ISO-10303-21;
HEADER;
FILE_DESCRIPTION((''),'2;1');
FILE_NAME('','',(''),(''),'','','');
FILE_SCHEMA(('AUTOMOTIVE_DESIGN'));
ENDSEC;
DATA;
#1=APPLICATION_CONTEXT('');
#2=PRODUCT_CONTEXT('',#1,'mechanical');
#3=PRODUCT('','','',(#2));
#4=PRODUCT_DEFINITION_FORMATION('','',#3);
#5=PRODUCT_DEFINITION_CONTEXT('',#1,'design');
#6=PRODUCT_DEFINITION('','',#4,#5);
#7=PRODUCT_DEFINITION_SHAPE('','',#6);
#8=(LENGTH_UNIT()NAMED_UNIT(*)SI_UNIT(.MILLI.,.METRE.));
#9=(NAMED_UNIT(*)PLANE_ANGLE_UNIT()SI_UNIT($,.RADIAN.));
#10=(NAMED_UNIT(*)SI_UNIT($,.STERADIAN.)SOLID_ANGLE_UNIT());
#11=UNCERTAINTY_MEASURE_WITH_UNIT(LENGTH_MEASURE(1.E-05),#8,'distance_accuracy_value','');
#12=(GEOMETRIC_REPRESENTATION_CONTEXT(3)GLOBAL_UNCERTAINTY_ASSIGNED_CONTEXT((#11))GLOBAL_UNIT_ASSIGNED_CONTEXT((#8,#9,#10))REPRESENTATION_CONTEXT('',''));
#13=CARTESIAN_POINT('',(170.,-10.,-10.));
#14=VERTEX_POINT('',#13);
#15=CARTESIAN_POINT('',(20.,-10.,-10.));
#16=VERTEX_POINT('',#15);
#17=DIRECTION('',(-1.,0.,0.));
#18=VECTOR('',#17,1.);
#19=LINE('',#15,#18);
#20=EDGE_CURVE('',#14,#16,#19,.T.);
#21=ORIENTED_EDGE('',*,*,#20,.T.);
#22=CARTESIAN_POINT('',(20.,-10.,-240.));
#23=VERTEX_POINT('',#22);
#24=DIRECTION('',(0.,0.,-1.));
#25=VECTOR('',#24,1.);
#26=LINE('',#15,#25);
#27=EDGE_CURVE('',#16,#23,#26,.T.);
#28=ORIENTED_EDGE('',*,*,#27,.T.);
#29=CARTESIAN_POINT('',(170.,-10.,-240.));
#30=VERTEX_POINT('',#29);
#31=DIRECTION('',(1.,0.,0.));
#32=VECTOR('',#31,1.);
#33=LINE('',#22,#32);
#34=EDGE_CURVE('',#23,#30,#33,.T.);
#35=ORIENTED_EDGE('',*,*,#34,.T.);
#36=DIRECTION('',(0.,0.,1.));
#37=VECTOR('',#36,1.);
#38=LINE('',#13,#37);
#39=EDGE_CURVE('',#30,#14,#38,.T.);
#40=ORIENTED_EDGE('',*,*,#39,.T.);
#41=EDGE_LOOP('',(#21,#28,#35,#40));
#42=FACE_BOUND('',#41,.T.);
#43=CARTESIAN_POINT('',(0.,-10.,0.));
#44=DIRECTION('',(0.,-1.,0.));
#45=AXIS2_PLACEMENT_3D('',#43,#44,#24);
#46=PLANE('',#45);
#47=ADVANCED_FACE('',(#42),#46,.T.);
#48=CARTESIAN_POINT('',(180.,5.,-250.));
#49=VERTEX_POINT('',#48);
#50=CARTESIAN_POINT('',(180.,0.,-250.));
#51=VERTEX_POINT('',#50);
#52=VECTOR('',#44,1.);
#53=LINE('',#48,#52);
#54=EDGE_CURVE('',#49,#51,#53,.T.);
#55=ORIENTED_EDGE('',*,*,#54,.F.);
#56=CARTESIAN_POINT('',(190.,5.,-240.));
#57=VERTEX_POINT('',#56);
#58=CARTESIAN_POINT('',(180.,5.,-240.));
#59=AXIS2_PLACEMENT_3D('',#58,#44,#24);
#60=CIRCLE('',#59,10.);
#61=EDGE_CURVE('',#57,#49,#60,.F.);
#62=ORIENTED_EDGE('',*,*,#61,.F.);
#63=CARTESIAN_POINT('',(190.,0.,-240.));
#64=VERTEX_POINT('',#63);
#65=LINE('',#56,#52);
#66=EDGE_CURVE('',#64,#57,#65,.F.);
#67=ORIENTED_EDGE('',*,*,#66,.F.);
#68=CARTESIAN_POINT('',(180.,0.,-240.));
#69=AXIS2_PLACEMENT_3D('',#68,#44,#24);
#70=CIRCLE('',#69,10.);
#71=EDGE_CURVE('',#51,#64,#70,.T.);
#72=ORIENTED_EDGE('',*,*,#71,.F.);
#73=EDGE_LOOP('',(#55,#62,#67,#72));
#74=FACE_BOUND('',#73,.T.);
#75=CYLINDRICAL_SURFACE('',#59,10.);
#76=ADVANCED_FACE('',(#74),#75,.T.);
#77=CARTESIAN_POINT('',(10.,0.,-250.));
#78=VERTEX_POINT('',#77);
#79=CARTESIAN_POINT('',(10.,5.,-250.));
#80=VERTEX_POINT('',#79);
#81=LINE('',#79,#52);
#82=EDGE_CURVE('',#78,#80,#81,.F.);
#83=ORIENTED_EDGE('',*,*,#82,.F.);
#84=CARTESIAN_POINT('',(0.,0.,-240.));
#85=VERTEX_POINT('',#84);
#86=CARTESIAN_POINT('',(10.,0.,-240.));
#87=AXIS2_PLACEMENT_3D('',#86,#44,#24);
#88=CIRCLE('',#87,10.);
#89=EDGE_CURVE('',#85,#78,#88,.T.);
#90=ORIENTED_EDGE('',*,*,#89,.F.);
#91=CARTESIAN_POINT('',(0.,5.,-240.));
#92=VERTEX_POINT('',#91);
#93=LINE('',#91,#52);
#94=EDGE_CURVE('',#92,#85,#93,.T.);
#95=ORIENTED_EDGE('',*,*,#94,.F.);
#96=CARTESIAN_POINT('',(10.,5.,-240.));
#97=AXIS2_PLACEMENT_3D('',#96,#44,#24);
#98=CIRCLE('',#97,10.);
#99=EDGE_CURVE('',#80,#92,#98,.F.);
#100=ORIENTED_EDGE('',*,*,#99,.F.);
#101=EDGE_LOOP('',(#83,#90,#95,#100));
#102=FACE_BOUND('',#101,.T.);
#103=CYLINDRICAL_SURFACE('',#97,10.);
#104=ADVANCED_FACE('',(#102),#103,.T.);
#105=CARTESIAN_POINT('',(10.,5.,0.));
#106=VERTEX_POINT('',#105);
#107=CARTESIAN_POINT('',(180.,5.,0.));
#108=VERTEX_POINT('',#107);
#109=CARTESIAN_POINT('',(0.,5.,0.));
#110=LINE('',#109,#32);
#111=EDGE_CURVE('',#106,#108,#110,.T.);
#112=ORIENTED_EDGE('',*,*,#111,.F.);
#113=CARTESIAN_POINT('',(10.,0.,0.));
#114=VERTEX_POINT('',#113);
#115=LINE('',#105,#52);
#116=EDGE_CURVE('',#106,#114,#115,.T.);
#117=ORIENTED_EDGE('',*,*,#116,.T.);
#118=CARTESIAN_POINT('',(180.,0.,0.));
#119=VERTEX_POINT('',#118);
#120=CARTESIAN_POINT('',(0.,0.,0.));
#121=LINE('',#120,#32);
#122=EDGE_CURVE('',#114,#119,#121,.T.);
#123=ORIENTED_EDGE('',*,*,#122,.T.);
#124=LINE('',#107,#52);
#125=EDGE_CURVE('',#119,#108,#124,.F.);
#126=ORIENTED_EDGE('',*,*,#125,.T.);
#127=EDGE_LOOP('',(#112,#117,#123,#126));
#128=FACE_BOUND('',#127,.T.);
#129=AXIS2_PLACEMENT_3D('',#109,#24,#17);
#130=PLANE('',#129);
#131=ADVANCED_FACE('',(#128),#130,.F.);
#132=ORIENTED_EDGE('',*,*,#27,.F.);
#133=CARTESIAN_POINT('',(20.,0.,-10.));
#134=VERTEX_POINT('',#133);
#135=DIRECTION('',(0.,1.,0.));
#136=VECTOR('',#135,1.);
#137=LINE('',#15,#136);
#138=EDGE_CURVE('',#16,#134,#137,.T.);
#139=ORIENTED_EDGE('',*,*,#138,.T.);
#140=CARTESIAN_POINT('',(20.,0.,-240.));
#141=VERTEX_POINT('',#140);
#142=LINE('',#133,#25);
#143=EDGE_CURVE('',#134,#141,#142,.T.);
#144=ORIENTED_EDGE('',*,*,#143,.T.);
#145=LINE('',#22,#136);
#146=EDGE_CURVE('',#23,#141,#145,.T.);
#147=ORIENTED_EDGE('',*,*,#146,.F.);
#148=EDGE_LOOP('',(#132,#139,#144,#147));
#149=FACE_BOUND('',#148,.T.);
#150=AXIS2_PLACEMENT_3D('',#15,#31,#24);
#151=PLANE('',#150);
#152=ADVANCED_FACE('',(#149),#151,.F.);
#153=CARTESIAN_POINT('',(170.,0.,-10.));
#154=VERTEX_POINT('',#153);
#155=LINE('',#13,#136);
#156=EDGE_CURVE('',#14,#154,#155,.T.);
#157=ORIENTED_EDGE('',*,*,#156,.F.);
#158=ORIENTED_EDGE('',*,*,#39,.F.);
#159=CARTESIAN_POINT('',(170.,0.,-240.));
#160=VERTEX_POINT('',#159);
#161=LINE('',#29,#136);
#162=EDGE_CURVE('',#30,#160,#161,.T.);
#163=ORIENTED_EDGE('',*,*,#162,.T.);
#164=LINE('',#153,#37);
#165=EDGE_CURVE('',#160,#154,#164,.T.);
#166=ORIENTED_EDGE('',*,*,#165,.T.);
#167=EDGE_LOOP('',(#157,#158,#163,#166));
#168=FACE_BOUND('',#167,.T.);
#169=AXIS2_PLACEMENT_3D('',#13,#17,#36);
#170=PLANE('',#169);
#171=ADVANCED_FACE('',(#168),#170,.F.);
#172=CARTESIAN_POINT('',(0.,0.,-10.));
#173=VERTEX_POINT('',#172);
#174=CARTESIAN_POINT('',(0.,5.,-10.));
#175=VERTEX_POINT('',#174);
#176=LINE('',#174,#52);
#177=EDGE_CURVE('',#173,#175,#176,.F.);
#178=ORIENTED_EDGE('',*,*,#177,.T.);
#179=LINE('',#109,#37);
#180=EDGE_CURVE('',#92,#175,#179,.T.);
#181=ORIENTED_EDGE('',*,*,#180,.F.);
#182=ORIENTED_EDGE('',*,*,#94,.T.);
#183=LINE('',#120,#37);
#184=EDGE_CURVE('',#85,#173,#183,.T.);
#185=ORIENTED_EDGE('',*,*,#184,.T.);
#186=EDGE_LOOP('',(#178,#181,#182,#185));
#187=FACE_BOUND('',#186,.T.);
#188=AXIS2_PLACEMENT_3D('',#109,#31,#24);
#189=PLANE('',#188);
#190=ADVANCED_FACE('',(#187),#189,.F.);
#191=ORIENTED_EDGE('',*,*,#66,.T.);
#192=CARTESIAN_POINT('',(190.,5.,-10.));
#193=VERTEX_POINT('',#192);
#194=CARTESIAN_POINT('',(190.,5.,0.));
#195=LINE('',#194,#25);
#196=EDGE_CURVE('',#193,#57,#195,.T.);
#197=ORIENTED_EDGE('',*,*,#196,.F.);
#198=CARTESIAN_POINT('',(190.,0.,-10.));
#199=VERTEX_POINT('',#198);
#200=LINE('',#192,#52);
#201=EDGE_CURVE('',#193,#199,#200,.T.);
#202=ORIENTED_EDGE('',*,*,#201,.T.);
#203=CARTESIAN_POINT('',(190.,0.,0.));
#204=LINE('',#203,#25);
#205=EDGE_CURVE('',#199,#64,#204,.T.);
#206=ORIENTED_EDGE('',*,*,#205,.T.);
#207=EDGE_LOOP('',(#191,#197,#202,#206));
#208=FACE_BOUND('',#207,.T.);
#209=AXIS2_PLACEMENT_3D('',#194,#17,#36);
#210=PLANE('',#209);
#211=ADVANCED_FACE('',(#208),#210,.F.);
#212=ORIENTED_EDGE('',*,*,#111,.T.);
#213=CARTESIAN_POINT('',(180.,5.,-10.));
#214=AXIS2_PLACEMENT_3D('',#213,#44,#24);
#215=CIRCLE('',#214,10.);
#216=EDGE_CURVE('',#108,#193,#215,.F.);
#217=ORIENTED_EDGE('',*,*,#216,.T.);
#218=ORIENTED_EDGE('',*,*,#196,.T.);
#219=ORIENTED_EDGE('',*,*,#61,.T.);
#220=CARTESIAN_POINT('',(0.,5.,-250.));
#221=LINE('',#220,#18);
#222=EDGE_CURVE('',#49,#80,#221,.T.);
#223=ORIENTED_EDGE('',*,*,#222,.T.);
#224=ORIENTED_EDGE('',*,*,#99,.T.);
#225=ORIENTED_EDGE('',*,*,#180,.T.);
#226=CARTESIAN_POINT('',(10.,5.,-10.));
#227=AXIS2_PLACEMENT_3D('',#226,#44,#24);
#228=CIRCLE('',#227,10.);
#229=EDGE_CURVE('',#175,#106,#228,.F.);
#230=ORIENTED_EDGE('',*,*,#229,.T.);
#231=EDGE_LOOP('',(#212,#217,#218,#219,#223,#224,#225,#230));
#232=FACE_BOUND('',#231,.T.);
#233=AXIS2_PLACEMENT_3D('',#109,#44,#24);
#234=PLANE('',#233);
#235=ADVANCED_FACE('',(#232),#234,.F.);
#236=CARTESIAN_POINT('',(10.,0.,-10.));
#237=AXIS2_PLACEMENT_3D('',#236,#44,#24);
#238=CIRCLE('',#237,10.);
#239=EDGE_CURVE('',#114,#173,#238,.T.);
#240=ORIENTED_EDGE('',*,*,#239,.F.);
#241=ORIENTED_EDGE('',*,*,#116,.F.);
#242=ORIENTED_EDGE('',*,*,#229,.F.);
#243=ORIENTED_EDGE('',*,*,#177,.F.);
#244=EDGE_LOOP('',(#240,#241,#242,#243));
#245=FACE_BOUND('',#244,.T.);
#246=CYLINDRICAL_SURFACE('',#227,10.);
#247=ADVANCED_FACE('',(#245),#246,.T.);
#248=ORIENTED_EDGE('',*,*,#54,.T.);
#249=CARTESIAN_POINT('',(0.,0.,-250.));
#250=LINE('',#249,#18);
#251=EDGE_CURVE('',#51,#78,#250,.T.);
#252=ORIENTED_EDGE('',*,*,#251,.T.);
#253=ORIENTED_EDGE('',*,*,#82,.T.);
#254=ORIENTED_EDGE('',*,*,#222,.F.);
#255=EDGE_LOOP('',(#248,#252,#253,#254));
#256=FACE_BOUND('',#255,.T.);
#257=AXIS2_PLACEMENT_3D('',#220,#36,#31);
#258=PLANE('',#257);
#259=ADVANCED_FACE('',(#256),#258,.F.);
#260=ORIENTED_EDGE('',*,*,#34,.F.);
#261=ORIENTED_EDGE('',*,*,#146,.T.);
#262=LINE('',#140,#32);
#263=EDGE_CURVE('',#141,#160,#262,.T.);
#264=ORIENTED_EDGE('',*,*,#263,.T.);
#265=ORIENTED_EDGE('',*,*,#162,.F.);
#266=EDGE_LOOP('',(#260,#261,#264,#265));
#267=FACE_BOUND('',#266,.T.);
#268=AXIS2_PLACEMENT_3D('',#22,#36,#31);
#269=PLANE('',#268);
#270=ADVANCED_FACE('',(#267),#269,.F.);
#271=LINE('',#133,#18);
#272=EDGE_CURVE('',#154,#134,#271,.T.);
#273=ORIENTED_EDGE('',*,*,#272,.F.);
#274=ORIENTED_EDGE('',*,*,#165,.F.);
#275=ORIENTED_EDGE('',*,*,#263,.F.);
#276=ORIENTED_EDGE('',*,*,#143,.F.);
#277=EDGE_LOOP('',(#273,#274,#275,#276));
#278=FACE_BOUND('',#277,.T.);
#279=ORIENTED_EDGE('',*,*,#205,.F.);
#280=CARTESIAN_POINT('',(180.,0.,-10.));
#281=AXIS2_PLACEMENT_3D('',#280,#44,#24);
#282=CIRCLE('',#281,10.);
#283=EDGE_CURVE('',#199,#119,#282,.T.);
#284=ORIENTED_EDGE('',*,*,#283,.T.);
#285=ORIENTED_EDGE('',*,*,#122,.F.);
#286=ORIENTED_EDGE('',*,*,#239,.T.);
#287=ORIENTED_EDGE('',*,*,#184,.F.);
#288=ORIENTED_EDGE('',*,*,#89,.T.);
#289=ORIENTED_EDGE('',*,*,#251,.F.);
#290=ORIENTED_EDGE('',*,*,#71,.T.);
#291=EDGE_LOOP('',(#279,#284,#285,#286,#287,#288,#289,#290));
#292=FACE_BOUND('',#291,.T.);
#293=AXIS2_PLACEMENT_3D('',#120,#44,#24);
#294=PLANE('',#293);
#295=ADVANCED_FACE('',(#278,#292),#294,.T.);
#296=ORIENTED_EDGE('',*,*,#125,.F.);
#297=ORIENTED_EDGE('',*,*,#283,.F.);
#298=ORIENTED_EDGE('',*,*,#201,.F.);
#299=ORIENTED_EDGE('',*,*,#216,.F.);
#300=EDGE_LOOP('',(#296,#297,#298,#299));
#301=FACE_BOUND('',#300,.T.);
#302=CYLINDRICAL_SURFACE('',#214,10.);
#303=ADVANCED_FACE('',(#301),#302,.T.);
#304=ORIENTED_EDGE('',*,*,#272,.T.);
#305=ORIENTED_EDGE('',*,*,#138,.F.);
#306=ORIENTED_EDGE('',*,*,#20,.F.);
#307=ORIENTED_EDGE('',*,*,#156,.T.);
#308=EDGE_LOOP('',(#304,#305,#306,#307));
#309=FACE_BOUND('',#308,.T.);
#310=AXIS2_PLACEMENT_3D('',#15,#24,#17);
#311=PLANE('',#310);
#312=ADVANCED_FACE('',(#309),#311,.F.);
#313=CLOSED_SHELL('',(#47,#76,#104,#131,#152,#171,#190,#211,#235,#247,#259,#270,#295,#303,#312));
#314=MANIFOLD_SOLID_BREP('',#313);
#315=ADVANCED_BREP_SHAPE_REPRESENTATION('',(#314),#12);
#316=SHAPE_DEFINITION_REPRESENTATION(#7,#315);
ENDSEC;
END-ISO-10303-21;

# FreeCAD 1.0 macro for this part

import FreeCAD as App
import Part
import Sketcher

V = App.Vector
Q = App.Units.Quantity


def edges_at(feature, points):
    """Names of the edges that pass closest to the given points."""
    edges = feature.Shape.Edges
    near = lambda p: min(range(len(edges)), key=lambda i: edges[i].distToShape(Part.Vertex(*p))[0])
    return sorted({f"Edge{near(p) + 1}" for p in points})

doc = App.newDocument("Part")
params = doc.addObject("Spreadsheet::Sheet", "Params")
for row, (alias, value) in enumerate([
    ("sketch1_width", "190 mm"),
    ("sketch1_height", "250 mm"),
    ("pad1_length", "5 mm"),
    ("fillet_radius", "10 mm"),
    ("sketch2_width", "150 mm"),
    ("sketch2_height", "230 mm"),
    ("pad2_length", "10 mm"),
], start=1):
    params.set(f"A{row}", alias)
    params.set(f"B{row}", "=" + value)
    params.setAlias(f"B{row}", alias)

body = doc.addObject("PartDesign::Body", "Body")

# Sketch on XZ plane
sketch1 = body.newObject("Sketcher::SketchObject", "Sketch")
sketch1.AttachmentSupport = (doc.getObject("XZ_Plane"), [""])
sketch1.MapMode = "FlatFace"
sketch1.addGeometry(Part.LineSegment(V(0, -250, 0), V(0, 0, 0)), False)
sketch1.addGeometry(Part.LineSegment(V(0, 0, 0), V(190, 0, 0)), False)
sketch1.addGeometry(Part.LineSegment(V(190, 0, 0), V(190, -250, 0)), False)
sketch1.addGeometry(Part.LineSegment(V(190, -250, 0), V(0, -250, 0)), False)
sketch1.addConstraint(Sketcher.Constraint("Coincident", 0, 2, 1, 1))
sketch1.addConstraint(Sketcher.Constraint("Coincident", 1, 2, 2, 1))
sketch1.addConstraint(Sketcher.Constraint("Coincident", 2, 2, 3, 1))
sketch1.addConstraint(Sketcher.Constraint("Coincident", 3, 2, 0, 1))
sketch1.addConstraint(Sketcher.Constraint("Vertical", 0))
sketch1.addConstraint(Sketcher.Constraint("Horizontal", 1))
sketch1.addConstraint(Sketcher.Constraint("Vertical", 2))
sketch1.addConstraint(Sketcher.Constraint("Horizontal", 3))
sketch1.addConstraint(Sketcher.Constraint("Coincident", 0, 2, -1, 1))
sketch1.addConstraint(Sketcher.Constraint("DistanceX", 1, 1, 1, 2, Q("190 mm")))
sketch1.addConstraint(Sketcher.Constraint("DistanceY", 0, 1, 0, 2, Q("250 mm")))
sketch1.setExpression("Constraints[9]", "Params.sketch1_width")
sketch1.setExpression("Constraints[10]", "Params.sketch1_height")
pad1 = body.newObject("PartDesign::Pad", "Pad")
pad1.Profile = sketch1
pad1.setExpression("Length", "Params.pad1_length")
pad1.Reversed = True
doc.recompute()

fillet = body.newObject("PartDesign::Fillet", "Fillet")
fillet.Base = (pad1, edges_at(pad1, [
    (0, 2.5, -250),
    (190, 2.5, -250),
    (190, 2.5, 0),
    (0, 2.5, 0),
]))
fillet.setExpression("Radius", "Params.fillet_radius")

# Sketch on XZ plane
sketch2 = body.newObject("Sketcher::SketchObject", "Sketch001")
sketch2.AttachmentSupport = (doc.getObject("XZ_Plane"), [""])
sketch2.MapMode = "FlatFace"
sketch2.addGeometry(Part.LineSegment(V(20, -10, 0), V(20, -240, 0)), False)
sketch2.addGeometry(Part.LineSegment(V(20, -240, 0), V(170, -240, 0)), False)
sketch2.addGeometry(Part.LineSegment(V(170, -240, 0), V(170, -10, 0)), False)
sketch2.addGeometry(Part.LineSegment(V(170, -10, 0), V(20, -10, 0)), False)
sketch2.addConstraint(Sketcher.Constraint("Coincident", 0, 2, 1, 1))
sketch2.addConstraint(Sketcher.Constraint("Coincident", 1, 2, 2, 1))
sketch2.addConstraint(Sketcher.Constraint("Coincident", 2, 2, 3, 1))
sketch2.addConstraint(Sketcher.Constraint("Coincident", 3, 2, 0, 1))
sketch2.addConstraint(Sketcher.Constraint("Vertical", 0))
sketch2.addConstraint(Sketcher.Constraint("Horizontal", 1))
sketch2.addConstraint(Sketcher.Constraint("Vertical", 2))
sketch2.addConstraint(Sketcher.Constraint("Horizontal", 3))
sketch2.addConstraint(Sketcher.Constraint("DistanceX", 1, 1, 1, 2, Q("150 mm")))
sketch2.addConstraint(Sketcher.Constraint("DistanceY", 0, 2, 0, 1, Q("230 mm")))
sketch2.addConstraint(Sketcher.Constraint("DistanceX", -1, 1, 0, 2, Q("20 mm")))
sketch2.addConstraint(Sketcher.Constraint("DistanceY", 0, 2, -1, 1, Q("240 mm")))
sketch2.setExpression("Constraints[8]", "Params.sketch2_width")
sketch2.setExpression("Constraints[9]", "Params.sketch2_height")
pad2 = body.newObject("PartDesign::Pad", "Pad001")
pad2.Profile = sketch2
pad2.setExpression("Length", "Params.pad2_length")

doc.recompute()
